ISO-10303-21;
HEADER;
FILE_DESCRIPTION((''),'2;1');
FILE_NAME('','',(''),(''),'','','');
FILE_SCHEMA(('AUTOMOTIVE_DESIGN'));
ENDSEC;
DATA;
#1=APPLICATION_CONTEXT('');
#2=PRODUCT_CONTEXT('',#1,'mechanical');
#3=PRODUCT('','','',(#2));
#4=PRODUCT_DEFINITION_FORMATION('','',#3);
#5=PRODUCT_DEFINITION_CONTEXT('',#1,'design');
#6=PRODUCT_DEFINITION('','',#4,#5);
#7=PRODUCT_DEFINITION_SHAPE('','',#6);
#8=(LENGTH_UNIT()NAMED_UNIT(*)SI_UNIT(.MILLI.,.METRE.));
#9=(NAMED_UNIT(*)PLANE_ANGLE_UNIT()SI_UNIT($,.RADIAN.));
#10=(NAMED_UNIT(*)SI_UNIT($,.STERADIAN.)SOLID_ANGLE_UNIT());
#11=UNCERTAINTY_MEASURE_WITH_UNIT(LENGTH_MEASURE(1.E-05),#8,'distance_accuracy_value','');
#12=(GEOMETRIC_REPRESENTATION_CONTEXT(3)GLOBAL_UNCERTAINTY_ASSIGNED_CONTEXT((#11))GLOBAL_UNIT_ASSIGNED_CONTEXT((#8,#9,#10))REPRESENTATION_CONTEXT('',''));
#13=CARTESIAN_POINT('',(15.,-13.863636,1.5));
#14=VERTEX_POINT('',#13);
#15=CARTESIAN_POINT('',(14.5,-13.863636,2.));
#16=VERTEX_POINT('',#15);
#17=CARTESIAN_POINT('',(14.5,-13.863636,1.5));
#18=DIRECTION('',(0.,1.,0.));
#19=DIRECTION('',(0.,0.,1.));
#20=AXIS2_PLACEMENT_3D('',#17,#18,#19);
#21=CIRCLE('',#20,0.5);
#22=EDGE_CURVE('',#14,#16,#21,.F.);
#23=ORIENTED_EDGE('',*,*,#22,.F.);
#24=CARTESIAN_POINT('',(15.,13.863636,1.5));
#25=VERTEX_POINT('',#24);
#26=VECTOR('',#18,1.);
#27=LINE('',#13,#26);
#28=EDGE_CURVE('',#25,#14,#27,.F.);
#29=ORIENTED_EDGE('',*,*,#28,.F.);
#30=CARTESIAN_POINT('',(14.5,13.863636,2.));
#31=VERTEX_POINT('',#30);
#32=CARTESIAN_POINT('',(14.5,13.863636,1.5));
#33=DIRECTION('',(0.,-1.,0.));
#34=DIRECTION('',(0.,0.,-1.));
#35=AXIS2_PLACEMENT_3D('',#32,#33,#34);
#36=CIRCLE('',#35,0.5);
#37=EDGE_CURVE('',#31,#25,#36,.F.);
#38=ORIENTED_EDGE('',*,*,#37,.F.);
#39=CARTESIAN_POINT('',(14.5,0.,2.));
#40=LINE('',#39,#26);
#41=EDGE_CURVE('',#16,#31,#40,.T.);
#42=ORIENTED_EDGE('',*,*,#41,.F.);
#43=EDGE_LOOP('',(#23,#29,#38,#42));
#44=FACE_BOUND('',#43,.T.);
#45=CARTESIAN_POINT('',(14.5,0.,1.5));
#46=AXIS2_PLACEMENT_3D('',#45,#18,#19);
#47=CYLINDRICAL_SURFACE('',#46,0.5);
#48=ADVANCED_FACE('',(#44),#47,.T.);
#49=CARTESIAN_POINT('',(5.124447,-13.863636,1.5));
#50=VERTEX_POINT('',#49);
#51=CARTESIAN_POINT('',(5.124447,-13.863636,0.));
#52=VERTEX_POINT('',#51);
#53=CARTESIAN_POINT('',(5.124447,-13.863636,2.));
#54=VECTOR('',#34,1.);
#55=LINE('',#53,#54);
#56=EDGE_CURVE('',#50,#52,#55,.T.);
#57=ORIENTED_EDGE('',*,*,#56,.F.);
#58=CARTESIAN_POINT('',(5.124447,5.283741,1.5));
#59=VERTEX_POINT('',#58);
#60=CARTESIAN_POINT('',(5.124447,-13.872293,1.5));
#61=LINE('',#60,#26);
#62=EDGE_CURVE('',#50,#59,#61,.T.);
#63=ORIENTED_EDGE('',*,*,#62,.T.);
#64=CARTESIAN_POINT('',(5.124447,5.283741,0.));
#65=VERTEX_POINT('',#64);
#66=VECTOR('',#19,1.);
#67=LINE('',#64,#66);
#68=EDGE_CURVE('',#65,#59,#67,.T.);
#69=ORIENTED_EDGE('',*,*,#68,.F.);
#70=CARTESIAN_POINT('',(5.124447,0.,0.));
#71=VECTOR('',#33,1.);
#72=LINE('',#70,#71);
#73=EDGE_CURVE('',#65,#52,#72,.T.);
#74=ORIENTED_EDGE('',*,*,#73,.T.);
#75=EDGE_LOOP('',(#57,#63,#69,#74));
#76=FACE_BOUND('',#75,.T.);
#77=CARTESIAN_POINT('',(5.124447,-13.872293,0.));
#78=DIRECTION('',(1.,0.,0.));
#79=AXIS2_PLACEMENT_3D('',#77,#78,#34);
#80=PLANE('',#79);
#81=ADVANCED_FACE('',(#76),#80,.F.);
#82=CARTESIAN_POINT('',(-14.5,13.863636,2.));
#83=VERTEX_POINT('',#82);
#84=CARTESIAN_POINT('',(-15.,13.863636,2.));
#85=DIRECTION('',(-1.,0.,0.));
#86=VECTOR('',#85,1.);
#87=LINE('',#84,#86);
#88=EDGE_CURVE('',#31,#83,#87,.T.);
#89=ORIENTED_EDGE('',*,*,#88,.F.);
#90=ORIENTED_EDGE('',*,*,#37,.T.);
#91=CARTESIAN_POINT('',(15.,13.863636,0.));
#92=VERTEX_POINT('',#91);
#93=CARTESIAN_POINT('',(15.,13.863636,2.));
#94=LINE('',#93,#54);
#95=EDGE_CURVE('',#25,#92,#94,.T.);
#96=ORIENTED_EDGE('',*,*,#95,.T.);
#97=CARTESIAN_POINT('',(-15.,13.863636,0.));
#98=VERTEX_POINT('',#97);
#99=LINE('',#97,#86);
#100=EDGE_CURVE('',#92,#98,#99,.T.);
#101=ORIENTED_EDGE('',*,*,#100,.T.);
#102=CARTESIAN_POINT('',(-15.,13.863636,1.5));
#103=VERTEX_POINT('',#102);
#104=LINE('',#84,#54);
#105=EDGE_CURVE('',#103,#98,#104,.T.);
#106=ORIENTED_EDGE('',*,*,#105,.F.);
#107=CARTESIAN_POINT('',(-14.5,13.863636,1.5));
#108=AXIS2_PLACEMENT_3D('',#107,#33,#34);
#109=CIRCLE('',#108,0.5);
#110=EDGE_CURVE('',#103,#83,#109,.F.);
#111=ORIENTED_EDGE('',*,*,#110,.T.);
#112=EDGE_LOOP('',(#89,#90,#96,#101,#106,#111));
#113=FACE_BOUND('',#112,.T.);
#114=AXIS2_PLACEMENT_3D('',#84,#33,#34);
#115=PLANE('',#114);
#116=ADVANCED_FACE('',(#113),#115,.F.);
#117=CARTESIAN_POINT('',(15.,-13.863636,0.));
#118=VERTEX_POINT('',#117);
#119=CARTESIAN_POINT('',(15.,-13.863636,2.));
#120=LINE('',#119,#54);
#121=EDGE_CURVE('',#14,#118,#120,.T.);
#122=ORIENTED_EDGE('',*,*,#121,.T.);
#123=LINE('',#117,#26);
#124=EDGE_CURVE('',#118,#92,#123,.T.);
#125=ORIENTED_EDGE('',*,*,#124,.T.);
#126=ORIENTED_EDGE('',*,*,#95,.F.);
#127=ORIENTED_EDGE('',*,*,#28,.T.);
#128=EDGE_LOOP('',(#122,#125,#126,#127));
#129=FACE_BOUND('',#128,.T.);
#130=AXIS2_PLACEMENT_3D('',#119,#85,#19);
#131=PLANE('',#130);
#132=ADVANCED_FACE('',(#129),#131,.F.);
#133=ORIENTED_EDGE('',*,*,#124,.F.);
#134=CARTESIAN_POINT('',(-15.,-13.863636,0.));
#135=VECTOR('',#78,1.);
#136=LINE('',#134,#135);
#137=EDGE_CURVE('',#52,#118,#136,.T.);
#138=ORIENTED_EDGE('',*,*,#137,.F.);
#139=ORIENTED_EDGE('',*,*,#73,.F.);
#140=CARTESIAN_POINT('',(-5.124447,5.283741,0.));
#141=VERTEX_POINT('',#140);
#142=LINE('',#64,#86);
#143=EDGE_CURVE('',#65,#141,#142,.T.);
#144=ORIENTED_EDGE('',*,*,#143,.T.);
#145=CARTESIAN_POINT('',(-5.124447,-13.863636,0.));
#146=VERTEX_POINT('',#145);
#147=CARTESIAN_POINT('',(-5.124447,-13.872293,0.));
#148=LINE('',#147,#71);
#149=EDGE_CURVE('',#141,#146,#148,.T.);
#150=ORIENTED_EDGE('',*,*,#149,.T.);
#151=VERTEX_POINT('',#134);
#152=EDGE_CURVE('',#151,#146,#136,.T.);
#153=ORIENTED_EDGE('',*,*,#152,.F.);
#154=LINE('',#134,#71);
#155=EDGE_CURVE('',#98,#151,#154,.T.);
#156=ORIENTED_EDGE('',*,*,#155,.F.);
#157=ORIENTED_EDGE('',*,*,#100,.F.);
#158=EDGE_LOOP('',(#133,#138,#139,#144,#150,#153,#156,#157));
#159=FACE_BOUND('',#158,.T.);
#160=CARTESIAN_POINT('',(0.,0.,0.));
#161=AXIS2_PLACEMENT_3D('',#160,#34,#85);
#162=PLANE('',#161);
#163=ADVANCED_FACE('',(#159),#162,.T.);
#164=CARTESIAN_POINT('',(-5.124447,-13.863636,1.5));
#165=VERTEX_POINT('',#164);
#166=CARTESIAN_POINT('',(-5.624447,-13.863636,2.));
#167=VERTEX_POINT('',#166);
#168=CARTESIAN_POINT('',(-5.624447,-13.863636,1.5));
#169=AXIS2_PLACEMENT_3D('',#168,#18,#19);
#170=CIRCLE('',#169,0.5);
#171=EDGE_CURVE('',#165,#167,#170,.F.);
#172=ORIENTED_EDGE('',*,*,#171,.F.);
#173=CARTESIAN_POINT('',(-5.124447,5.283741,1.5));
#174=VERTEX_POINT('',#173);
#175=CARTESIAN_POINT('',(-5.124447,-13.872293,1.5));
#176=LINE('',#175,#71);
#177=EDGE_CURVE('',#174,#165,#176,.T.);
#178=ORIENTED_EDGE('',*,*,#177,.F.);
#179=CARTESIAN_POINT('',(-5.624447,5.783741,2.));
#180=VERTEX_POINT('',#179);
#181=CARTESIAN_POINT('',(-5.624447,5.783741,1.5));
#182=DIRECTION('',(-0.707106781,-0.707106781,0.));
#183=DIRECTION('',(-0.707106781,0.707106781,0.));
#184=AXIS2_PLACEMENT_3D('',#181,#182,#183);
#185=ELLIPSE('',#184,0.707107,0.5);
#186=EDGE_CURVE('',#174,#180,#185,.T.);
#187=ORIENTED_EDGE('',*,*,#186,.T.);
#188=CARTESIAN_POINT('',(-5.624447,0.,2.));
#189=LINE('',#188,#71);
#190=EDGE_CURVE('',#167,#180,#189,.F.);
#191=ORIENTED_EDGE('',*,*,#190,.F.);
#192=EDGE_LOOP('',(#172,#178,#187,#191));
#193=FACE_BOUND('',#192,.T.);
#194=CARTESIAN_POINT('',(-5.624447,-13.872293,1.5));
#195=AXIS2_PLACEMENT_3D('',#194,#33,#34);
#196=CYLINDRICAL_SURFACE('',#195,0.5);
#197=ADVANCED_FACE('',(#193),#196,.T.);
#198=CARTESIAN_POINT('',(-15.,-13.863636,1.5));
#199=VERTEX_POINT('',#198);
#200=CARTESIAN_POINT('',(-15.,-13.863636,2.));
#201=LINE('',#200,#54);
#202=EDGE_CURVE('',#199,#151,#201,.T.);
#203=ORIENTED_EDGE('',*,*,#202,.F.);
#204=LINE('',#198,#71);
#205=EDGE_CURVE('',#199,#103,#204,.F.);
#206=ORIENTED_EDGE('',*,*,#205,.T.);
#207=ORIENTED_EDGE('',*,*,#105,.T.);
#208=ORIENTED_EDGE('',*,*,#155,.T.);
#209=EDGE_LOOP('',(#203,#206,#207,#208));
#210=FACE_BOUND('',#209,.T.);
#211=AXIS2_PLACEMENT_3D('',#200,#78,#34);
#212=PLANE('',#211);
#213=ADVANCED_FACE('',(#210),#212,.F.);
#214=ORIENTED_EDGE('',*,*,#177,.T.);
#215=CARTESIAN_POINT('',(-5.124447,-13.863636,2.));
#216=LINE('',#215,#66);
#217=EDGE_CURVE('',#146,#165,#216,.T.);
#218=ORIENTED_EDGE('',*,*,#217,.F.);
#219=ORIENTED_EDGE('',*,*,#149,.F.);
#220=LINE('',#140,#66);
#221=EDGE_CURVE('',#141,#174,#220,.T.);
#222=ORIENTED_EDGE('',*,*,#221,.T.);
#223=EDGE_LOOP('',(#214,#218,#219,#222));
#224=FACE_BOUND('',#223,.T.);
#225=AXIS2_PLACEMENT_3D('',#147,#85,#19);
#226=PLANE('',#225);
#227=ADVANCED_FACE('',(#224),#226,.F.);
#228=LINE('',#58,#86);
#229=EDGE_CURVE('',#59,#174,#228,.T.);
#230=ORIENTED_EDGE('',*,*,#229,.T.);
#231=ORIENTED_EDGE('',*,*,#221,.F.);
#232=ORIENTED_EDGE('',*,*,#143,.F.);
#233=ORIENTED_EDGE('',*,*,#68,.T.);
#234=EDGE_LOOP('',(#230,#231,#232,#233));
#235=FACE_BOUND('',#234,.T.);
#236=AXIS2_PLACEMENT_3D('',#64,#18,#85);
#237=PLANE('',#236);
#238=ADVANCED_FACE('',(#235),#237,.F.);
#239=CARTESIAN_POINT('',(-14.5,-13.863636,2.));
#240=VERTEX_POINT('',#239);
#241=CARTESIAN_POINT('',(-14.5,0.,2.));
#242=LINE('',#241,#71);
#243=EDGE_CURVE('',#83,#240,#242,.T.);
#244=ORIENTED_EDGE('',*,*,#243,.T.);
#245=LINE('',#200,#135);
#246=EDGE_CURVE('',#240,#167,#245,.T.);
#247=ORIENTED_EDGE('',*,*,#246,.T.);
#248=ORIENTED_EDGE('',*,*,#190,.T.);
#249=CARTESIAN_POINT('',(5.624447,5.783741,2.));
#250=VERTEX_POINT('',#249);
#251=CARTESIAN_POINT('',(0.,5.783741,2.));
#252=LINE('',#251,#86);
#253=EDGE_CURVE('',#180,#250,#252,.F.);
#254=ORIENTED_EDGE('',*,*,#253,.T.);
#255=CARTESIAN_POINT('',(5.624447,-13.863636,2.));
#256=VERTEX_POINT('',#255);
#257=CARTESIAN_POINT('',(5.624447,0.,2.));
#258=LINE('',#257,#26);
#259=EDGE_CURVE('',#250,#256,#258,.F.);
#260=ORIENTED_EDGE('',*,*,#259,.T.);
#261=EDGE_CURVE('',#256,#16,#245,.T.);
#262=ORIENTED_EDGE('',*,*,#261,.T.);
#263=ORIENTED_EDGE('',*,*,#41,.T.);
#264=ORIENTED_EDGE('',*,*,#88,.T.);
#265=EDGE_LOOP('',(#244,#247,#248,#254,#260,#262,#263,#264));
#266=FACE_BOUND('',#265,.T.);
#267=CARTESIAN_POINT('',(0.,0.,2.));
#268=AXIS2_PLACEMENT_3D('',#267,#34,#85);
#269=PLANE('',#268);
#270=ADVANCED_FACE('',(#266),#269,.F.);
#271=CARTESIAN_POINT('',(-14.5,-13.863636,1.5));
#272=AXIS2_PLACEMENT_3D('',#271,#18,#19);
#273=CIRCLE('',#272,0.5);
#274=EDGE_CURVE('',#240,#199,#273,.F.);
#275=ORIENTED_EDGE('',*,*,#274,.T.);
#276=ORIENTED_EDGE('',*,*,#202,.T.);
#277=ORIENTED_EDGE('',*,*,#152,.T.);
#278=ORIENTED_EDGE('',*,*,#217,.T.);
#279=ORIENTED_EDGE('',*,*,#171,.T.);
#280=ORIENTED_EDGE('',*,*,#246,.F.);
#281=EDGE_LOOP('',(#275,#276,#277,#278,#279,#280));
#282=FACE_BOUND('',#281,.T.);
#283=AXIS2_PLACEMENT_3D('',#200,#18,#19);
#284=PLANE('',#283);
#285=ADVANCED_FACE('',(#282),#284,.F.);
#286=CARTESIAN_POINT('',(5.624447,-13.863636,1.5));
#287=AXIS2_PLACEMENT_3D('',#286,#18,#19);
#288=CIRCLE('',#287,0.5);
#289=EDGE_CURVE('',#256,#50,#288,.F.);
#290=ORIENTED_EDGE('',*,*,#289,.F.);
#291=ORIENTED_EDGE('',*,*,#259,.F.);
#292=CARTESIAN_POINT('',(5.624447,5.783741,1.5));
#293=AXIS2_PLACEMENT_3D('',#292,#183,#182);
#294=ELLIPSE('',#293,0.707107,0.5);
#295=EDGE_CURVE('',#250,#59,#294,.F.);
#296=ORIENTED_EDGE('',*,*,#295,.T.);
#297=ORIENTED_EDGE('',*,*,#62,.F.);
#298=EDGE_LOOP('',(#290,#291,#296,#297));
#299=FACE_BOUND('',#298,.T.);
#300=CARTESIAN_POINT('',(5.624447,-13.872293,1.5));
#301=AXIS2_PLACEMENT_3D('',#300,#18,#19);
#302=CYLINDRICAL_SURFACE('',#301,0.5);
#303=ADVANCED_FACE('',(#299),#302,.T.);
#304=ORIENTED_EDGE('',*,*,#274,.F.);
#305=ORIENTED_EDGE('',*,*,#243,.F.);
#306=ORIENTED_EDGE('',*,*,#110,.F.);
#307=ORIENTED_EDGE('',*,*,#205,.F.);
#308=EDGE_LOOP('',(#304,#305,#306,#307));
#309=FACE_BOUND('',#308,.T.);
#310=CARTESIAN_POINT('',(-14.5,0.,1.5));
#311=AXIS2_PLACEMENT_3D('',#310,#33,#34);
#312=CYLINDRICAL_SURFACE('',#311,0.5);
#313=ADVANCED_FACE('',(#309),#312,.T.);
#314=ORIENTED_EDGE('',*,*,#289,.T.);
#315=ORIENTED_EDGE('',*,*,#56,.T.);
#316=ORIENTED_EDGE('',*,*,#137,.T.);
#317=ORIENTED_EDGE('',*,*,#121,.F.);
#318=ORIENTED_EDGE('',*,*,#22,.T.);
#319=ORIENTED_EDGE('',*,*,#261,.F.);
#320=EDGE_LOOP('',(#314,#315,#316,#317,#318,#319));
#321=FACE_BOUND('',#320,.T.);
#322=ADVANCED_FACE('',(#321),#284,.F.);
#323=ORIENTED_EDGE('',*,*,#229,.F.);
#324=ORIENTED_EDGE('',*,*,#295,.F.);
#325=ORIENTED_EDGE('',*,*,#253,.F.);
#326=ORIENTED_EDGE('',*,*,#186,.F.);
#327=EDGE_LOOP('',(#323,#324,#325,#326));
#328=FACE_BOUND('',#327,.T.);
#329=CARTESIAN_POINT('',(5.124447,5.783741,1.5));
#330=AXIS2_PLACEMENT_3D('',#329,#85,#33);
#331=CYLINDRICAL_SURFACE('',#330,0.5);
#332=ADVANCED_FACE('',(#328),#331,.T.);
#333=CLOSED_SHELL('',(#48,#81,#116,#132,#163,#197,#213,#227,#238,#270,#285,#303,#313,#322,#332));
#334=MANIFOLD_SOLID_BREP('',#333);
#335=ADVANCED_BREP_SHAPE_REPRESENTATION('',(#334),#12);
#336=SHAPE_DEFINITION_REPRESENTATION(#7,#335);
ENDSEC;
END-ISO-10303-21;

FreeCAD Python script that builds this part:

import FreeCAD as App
import Part
import Sketcher

V = App.Vector
Q = App.Units.Quantity


def edges_at(feature, points):
    """Names of the edges that pass closest to the given points."""
    edges = feature.Shape.Edges
    near = lambda p: min(range(len(edges)), key=lambda i: edges[i].distToShape(Part.Vertex(*p))[0])
    return sorted({f"Edge{near(p) + 1}" for p in points})

doc = App.newDocument("Part")
params = doc.addObject("Spreadsheet::Sheet", "Params")
for row, (alias, value) in enumerate([
    ("sketch1_width", "30 mm"),
    ("pad1_length", "2 mm"),
    ("pocket1_length", "2 mm"),
    ("fillet_radius", "0.5 mm"),
    ("fillet2_radius", "0.5 mm"),
    ("fillet3_radius", "0.5 mm"),
    ("fillet4_radius", "0.5 mm"),
    ("fillet5_radius", "0.5 mm"),
], start=1):
    params.set(f"A{row}", alias)
    params.set(f"B{row}", "=" + value)
    params.setAlias(f"B{row}", alias)

body = doc.addObject("PartDesign::Body", "Body")

sketch1 = doc.addObject("Sketcher::SketchObject", "Sketch")
body.addObject(sketch1)
sketch1.AttachmentSupport = (doc.XY_Plane, [""])
sketch1.MapMode = "FlatFace"
sketch1.addGeometry([
    Part.LineSegment(V(-15, 14, 0), V(-15, -14, 0)),
    Part.LineSegment(V(-15, -14, 0), V(15, -14, 0)),
    Part.LineSegment(V(15, -14, 0), V(15, 14, 0)),
    Part.LineSegment(V(15, 14, 0), V(-15, 14, 0)),
], False)
sketch1.addConstraint([
    Sketcher.Constraint("Coincident", 0, 2, 1, 1),
    Sketcher.Constraint("Coincident", 1, 2, 2, 1),
    Sketcher.Constraint("Coincident", 2, 2, 3, 1),
    Sketcher.Constraint("Coincident", 3, 2, 0, 1),
    Sketcher.Constraint("Vertical", 0),
    Sketcher.Constraint("Horizontal", 1),
    Sketcher.Constraint("Vertical", 2),
    Sketcher.Constraint("Horizontal", 3),
    Sketcher.Constraint("Symmetric", 0, 2, 2, 2, -1, 1),
    Sketcher.Constraint("DistanceX", 1, 1, 1, 2, Q("30 mm")),
    Sketcher.Constraint("DistanceY", 0, 2, 0, 1, Q("27.727273 mm")),
])
sketch1.setExpression("Constraints[9]", "Params.sketch1_width")
pad1 = doc.addObject("PartDesign::Pad", "Pad")
body.addObject(pad1)
pad1.Profile = sketch1
pad1.setExpression("Length", "Params.pad1_length")

sketch2 = doc.addObject("Sketcher::SketchObject", "Sketch001")
body.addObject(sketch2)
sketch2.AttachmentSupport = (doc.XY_Plane, [""])
sketch2.MapMode = "FlatFace"
sketch2.AttachmentOffset = App.Placement(V(0, 0, 2), App.Rotation())
sketch2.addGeometry([
    Part.LineSegment(V(-5, 5, 0), V(-5, -14, 0)),
    Part.LineSegment(V(-5, -14, 0), V(5, -14, 0)),
    Part.LineSegment(V(5, -14, 0), V(5, 5, 0)),
    Part.LineSegment(V(5, 5, 0), V(-5, 5, 0)),
], False)
sketch2.addConstraint([
    Sketcher.Constraint("Coincident", 0, 2, 1, 1),
    Sketcher.Constraint("Coincident", 1, 2, 2, 1),
    Sketcher.Constraint("Coincident", 2, 2, 3, 1),
    Sketcher.Constraint("Coincident", 3, 2, 0, 1),
    Sketcher.Constraint("Vertical", 0),
    Sketcher.Constraint("Horizontal", 1),
    Sketcher.Constraint("Vertical", 2),
    Sketcher.Constraint("Horizontal", 3),
    Sketcher.Constraint("DistanceX", 1, 1, 1, 2, Q("10.248894 mm")),
    Sketcher.Constraint("DistanceY", 0, 2, 0, 1, Q("19.156033 mm")),
    Sketcher.Constraint("DistanceY", -1, 1, 2, 2, Q("5.283741 mm")),
    Sketcher.Constraint("DistanceX", 0, 2, -1, 1, Q("5.124447 mm")),
])
pocket1 = doc.addObject("PartDesign::Pocket", "Pocket")
body.addObject(pocket1)
pocket1.Profile = sketch2
pocket1.setExpression("Length", "Params.pocket1_length")
doc.recompute()

fillet = doc.addObject("PartDesign::Fillet", "Fillet")
body.addObject(fillet)
fillet.Base = (pocket1, edges_at(pocket1, [(-15, 0, 2)]))
fillet.setExpression("Radius", "Params.fillet_radius")
doc.recompute()

fillet2 = doc.addObject("PartDesign::Fillet", "Fillet001")
body.addObject(fillet2)
fillet2.Base = (fillet, edges_at(fillet, [(15, 0, 2)]))
fillet2.setExpression("Radius", "Params.fillet2_radius")
doc.recompute()

fillet3 = doc.addObject("PartDesign::Fillet", "Fillet002")
body.addObject(fillet3)
fillet3.Base = (fillet2, edges_at(fillet2, [(-5.124, -4.29, 2)]))
fillet3.setExpression("Radius", "Params.fillet3_radius")
doc.recompute()

fillet4 = doc.addObject("PartDesign::Fillet", "Fillet003")
body.addObject(fillet4)
fillet4.Base = (fillet3, edges_at(fillet3, [(5.124, -4.29, 2)]))
fillet4.setExpression("Radius", "Params.fillet4_radius")
doc.recompute()

fillet5 = doc.addObject("PartDesign::Fillet", "Fillet004")
body.addObject(fillet5)
fillet5.Base = (fillet4, edges_at(fillet4, [(0, 5.284, 2)]))
fillet5.setExpression("Radius", "Params.fillet5_radius")

doc.recompute()
